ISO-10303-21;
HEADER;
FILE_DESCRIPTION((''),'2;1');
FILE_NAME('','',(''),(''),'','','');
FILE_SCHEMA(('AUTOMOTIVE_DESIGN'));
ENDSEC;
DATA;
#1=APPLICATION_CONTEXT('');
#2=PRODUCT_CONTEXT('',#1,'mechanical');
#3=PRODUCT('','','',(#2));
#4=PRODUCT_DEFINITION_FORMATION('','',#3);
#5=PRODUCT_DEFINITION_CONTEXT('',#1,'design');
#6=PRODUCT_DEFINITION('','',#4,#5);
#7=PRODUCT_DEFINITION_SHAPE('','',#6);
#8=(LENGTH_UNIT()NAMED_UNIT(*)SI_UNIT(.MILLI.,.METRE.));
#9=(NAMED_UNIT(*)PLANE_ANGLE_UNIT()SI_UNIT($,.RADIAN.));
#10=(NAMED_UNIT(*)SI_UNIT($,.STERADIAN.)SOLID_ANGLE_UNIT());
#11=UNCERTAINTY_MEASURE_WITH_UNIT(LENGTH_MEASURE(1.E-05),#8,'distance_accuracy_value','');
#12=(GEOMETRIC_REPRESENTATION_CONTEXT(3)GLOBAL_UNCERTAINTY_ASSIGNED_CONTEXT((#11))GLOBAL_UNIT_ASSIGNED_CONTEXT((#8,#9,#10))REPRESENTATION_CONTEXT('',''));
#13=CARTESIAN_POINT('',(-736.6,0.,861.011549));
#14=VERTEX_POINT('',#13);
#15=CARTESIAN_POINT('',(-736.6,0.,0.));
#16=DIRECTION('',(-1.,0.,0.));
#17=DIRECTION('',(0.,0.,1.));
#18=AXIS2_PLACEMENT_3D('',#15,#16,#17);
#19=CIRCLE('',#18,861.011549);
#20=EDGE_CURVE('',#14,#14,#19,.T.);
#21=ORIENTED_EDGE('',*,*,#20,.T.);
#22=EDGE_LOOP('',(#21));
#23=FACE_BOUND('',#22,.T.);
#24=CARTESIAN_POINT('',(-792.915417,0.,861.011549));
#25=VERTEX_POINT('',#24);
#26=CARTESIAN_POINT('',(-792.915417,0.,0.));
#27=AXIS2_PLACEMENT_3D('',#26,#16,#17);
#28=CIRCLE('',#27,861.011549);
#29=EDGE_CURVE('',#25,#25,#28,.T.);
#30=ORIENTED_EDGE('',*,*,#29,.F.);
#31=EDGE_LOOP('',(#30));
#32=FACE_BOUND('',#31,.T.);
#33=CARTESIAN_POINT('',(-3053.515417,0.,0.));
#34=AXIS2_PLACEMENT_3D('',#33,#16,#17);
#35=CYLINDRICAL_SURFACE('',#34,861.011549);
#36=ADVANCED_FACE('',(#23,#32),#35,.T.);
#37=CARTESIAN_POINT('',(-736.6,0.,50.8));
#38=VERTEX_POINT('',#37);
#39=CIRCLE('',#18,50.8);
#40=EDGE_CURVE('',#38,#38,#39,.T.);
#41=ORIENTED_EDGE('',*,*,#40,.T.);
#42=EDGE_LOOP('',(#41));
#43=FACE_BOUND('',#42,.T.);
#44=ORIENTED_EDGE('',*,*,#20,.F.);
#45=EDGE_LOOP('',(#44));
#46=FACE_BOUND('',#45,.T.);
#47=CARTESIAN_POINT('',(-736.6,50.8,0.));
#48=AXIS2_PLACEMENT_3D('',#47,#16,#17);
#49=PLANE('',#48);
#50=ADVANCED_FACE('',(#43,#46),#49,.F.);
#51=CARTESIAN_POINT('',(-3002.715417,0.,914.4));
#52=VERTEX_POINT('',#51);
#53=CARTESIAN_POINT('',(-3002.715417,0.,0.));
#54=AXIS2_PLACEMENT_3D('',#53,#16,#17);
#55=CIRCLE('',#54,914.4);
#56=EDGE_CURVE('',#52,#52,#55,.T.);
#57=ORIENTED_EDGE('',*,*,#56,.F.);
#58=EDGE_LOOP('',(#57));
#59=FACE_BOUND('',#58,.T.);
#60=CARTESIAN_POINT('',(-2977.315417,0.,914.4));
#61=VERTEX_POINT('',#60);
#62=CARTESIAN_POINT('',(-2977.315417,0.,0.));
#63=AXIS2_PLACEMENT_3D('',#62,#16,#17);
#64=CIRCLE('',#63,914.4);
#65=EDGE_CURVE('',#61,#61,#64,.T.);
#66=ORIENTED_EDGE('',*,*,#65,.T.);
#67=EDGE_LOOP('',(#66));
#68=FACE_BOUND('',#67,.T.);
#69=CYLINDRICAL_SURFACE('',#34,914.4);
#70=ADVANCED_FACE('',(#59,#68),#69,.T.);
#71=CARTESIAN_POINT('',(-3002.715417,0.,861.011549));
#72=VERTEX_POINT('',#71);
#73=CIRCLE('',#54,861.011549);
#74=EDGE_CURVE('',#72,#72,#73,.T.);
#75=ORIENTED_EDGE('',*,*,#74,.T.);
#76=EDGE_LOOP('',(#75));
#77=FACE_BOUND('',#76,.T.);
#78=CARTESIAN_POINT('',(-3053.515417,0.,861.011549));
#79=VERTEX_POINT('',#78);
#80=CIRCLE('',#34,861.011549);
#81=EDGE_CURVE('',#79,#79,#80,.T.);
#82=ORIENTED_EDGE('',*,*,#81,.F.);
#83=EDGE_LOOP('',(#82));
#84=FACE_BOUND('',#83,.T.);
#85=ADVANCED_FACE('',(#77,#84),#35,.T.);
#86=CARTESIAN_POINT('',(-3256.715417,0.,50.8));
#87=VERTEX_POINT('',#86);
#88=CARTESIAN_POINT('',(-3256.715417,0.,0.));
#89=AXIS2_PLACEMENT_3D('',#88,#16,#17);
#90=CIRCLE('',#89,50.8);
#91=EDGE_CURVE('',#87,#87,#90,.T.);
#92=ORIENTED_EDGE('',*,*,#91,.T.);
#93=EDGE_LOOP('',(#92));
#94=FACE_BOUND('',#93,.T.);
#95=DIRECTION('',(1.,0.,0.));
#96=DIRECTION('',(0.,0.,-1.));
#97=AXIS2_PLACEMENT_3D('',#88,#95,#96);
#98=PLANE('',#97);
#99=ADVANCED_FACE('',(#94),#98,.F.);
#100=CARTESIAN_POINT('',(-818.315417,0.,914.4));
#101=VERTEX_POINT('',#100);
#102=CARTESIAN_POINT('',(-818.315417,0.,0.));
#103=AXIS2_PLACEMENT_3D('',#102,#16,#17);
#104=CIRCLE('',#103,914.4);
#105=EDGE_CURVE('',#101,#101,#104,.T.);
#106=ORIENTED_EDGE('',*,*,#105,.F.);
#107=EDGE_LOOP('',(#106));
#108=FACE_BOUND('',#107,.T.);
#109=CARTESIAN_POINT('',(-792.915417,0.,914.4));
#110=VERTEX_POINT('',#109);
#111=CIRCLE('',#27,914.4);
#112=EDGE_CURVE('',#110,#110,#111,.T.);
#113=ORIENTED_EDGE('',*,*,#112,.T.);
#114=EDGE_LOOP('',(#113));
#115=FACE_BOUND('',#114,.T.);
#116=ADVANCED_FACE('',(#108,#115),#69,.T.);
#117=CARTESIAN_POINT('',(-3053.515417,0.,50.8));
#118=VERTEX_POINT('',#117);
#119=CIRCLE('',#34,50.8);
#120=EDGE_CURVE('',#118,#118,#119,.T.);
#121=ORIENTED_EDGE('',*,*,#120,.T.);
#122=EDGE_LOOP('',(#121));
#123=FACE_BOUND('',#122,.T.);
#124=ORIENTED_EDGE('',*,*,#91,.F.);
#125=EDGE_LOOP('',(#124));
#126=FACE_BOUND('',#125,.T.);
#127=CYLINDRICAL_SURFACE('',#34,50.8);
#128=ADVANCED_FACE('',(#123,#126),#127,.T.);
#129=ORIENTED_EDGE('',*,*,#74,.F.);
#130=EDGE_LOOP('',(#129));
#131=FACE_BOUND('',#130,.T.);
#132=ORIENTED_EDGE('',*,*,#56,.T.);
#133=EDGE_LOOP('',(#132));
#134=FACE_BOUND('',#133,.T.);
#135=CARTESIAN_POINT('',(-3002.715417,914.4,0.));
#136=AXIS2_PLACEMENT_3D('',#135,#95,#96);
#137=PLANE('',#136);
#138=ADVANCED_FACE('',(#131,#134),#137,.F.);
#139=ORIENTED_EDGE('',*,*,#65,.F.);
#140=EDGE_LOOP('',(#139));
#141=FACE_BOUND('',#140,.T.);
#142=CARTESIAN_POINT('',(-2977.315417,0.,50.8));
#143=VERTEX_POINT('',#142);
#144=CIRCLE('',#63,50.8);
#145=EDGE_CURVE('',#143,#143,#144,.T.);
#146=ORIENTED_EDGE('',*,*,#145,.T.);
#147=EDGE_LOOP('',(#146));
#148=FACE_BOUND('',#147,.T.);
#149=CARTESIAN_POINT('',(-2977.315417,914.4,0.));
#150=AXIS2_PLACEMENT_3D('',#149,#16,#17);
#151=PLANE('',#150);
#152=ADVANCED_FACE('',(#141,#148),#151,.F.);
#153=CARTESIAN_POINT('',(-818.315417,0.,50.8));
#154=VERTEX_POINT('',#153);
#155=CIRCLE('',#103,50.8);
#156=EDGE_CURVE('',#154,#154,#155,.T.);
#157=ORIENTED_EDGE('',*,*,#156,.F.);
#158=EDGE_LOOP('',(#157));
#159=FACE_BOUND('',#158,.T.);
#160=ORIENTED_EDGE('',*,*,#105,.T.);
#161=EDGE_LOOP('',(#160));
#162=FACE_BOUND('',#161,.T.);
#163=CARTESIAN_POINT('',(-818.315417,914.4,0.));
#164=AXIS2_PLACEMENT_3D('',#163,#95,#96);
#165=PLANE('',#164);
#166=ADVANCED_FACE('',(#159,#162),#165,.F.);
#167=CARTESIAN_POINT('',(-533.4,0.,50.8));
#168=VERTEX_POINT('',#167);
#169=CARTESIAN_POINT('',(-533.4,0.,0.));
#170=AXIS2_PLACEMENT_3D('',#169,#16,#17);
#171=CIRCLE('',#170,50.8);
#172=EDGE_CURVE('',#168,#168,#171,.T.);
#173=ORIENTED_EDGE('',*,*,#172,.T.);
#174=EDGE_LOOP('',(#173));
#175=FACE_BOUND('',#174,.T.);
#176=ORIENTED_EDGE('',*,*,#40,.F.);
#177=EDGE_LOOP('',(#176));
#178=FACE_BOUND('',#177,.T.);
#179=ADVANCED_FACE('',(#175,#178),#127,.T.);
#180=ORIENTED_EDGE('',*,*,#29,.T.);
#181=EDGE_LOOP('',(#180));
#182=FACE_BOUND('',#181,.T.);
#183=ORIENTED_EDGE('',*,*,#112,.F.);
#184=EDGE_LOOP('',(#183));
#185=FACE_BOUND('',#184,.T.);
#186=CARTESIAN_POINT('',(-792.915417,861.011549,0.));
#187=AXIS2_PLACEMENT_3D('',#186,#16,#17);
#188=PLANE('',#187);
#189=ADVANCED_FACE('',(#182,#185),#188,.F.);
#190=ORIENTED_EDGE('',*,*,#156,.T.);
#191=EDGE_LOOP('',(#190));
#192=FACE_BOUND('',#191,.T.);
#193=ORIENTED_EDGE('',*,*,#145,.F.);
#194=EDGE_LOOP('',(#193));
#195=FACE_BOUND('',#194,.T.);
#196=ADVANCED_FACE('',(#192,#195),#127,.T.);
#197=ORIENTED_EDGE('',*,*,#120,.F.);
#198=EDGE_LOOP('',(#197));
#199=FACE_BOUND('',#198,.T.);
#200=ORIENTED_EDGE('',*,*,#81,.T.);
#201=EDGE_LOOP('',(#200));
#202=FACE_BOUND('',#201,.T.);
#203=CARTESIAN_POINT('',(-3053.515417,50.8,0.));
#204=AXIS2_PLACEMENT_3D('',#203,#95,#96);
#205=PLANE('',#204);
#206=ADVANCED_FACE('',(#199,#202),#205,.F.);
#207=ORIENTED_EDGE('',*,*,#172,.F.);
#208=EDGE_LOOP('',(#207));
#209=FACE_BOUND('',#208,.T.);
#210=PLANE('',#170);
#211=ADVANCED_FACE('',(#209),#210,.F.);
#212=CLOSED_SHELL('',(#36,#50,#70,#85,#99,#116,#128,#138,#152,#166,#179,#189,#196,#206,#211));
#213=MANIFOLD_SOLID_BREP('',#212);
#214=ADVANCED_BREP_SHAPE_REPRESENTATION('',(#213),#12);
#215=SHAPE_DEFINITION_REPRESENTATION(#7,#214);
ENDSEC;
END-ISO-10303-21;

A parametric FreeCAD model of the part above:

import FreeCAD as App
import Part
import Sketcher

V = App.Vector
Q = App.Units.Quantity

doc = App.newDocument("Part")
body = doc.addObject("PartDesign::Body", "Body")

# Sketch on XY plane
sketch1 = body.newObject("Sketcher::SketchObject", "Sketch")
sketch1.AttachmentSupport = (doc.getObject("XY_Plane"), [""])
sketch1.MapMode = "FlatFace"
sketch1.addGeometry(Part.LineSegment(V(-818, 51, 0), V(-2977, 51, 0)), False)
sketch1.addGeometry(Part.LineSegment(V(-2977, 51, 0), V(-2977, 914, 0)), False)
sketch1.addGeometry(Part.LineSegment(V(-2977, 914, 0), V(-3003, 914, 0)), False)
sketch1.addGeometry(Part.LineSegment(V(-3003, 914, 0), V(-3003, 861, 0)), False)
sketch1.addGeometry(Part.LineSegment(V(-3003, 861, 0), V(-3054, 861, 0)), False)
sketch1.addGeometry(Part.LineSegment(V(-3054, 861, 0), V(-3054, 51, 0)), False)
sketch1.addGeometry(Part.LineSegment(V(-3054, 51, 0), V(-3257, 51, 0)), False)
sketch1.addGeometry(Part.LineSegment(V(-3257, 51, 0), V(-3257, 0, 0)), False)
sketch1.addGeometry(Part.LineSegment(V(-3257, 0, 0), V(-533, 0, 0)), False)
sketch1.addGeometry(Part.LineSegment(V(-533, 0, 0), V(-533, 51, 0)), False)
sketch1.addGeometry(Part.LineSegment(V(-533, 51, 0), V(-737, 51, 0)), False)
sketch1.addGeometry(Part.LineSegment(V(-737, 51, 0), V(-737, 861, 0)), False)
sketch1.addGeometry(Part.LineSegment(V(-737, 861, 0), V(-793, 861, 0)), False)
sketch1.addGeometry(Part.LineSegment(V(-793, 861, 0), V(-793, 914, 0)), False)
sketch1.addGeometry(Part.LineSegment(V(-793, 914, 0), V(-818, 914, 0)), False)
sketch1.addGeometry(Part.LineSegment(V(-818, 914, 0), V(-818, 51, 0)), False)
sketch1.addConstraint(Sketcher.Constraint("Coincident", 0, 2, 1, 1))
sketch1.addConstraint(Sketcher.Constraint("Coincident", 1, 2, 2, 1))
sketch1.addConstraint(Sketcher.Constraint("Coincident", 2, 2, 3, 1))
sketch1.addConstraint(Sketcher.Constraint("Coincident", 3, 2, 4, 1))
sketch1.addConstraint(Sketcher.Constraint("Coincident", 4, 2, 5, 1))
sketch1.addConstraint(Sketcher.Constraint("Coincident", 5, 2, 6, 1))
sketch1.addConstraint(Sketcher.Constraint("Coincident", 6, 2, 7, 1))
sketch1.addConstraint(Sketcher.Constraint("Coincident", 7, 2, 8, 1))
sketch1.addConstraint(Sketcher.Constraint("Coincident", 8, 2, 9, 1))
sketch1.addConstraint(Sketcher.Constraint("Coincident", 9, 2, 10, 1))
sketch1.addConstraint(Sketcher.Constraint("Coincident", 10, 2, 11, 1))
sketch1.addConstraint(Sketcher.Constraint("Coincident", 11, 2, 12, 1))
sketch1.addConstraint(Sketcher.Constraint("Coincident", 12, 2, 13, 1))
sketch1.addConstraint(Sketcher.Constraint("Coincident", 13, 2, 14, 1))
sketch1.addConstraint(Sketcher.Constraint("Coincident", 14, 2, 15, 1))
sketch1.addConstraint(Sketcher.Constraint("Coincident", 15, 2, 0, 1))
sketch1.addConstraint(Sketcher.Constraint("Horizontal", 0))
sketch1.addConstraint(Sketcher.Constraint("Vertical", 1))
sketch1.addConstraint(Sketcher.Constraint("Horizontal", 2))
sketch1.addConstraint(Sketcher.Constraint("Vertical", 3))
sketch1.addConstraint(Sketcher.Constraint("Horizontal", 4))
sketch1.addConstraint(Sketcher.Constraint("Vertical", 5))
sketch1.addConstraint(Sketcher.Constraint("Horizontal", 6))
sketch1.addConstraint(Sketcher.Constraint("Vertical", 7))
sketch1.addConstraint(Sketcher.Constraint("Horizontal", 8))
sketch1.addConstraint(Sketcher.Constraint("Vertical", 9))
sketch1.addConstraint(Sketcher.Constraint("Horizontal", 10))
sketch1.addConstraint(Sketcher.Constraint("Vertical", 11))
sketch1.addConstraint(Sketcher.Constraint("Horizontal", 12))
sketch1.addConstraint(Sketcher.Constraint("Vertical", 13))
sketch1.addConstraint(Sketcher.Constraint("Horizontal", 14))
sketch1.addConstraint(Sketcher.Constraint("Vertical", 15))
sketch1.addConstraint(Sketcher.Constraint("PointOnObject", 7, 2, -1))
sketch1.addConstraint(Sketcher.Constraint("Horizontal", 0, 2, 5, 2))
sketch1.addConstraint(Sketcher.Constraint("Horizontal", 6, 2, 9, 2))
sketch1.addConstraint(Sketcher.Constraint("Horizontal", 4, 2, 11, 2))
sketch1.addConstraint(Sketcher.Constraint("Horizontal", 2, 2, 13, 2))
sketch1.addConstraint(Sketcher.Constraint("Equal", 6, 10))
sketch1.addConstraint(Sketcher.Constraint("Equal", 2, 14))
sketch1.addConstraint(Sketcher.Constraint("Equal", 4, 7))
sketch1.addConstraint(Sketcher.Constraint("DistanceX", 0, 2, 0, 1, Q("85 in")))
sketch1.addConstraint(Sketcher.Constraint("DistanceX", 2, 2, 2, 1, Q("1 in")))
sketch1.addConstraint(Sketcher.Constraint("DistanceX", 4, 2, 4, 1, Q("2 in")))
sketch1.addConstraint(Sketcher.Constraint("DistanceX", 6, 2, 6, 1, Q("8 in")))
sketch1.addConstraint(Sketcher.Constraint("DistanceY", 1, 1, 1, 2, Q("34 in")))
sketch1.addConstraint(Sketcher.Constraint("DistanceX", 8, 2, -1, 1, Q("21 in")))
sketch1.addConstraint(Sketcher.Constraint("DistanceY", 3, 2, 3, 1, 53.388451))
sketch1.addConstraint(Sketcher.Constraint("DistanceX", 8, 1, 8, 2, 2723.315417))
revolution = body.newObject("PartDesign::Revolution", "Revolution")
revolution.Profile = sketch1
revolution.ReferenceAxis = (sketch1, ["H_Axis"])
revolution.Angle = 360

doc.recompute()
